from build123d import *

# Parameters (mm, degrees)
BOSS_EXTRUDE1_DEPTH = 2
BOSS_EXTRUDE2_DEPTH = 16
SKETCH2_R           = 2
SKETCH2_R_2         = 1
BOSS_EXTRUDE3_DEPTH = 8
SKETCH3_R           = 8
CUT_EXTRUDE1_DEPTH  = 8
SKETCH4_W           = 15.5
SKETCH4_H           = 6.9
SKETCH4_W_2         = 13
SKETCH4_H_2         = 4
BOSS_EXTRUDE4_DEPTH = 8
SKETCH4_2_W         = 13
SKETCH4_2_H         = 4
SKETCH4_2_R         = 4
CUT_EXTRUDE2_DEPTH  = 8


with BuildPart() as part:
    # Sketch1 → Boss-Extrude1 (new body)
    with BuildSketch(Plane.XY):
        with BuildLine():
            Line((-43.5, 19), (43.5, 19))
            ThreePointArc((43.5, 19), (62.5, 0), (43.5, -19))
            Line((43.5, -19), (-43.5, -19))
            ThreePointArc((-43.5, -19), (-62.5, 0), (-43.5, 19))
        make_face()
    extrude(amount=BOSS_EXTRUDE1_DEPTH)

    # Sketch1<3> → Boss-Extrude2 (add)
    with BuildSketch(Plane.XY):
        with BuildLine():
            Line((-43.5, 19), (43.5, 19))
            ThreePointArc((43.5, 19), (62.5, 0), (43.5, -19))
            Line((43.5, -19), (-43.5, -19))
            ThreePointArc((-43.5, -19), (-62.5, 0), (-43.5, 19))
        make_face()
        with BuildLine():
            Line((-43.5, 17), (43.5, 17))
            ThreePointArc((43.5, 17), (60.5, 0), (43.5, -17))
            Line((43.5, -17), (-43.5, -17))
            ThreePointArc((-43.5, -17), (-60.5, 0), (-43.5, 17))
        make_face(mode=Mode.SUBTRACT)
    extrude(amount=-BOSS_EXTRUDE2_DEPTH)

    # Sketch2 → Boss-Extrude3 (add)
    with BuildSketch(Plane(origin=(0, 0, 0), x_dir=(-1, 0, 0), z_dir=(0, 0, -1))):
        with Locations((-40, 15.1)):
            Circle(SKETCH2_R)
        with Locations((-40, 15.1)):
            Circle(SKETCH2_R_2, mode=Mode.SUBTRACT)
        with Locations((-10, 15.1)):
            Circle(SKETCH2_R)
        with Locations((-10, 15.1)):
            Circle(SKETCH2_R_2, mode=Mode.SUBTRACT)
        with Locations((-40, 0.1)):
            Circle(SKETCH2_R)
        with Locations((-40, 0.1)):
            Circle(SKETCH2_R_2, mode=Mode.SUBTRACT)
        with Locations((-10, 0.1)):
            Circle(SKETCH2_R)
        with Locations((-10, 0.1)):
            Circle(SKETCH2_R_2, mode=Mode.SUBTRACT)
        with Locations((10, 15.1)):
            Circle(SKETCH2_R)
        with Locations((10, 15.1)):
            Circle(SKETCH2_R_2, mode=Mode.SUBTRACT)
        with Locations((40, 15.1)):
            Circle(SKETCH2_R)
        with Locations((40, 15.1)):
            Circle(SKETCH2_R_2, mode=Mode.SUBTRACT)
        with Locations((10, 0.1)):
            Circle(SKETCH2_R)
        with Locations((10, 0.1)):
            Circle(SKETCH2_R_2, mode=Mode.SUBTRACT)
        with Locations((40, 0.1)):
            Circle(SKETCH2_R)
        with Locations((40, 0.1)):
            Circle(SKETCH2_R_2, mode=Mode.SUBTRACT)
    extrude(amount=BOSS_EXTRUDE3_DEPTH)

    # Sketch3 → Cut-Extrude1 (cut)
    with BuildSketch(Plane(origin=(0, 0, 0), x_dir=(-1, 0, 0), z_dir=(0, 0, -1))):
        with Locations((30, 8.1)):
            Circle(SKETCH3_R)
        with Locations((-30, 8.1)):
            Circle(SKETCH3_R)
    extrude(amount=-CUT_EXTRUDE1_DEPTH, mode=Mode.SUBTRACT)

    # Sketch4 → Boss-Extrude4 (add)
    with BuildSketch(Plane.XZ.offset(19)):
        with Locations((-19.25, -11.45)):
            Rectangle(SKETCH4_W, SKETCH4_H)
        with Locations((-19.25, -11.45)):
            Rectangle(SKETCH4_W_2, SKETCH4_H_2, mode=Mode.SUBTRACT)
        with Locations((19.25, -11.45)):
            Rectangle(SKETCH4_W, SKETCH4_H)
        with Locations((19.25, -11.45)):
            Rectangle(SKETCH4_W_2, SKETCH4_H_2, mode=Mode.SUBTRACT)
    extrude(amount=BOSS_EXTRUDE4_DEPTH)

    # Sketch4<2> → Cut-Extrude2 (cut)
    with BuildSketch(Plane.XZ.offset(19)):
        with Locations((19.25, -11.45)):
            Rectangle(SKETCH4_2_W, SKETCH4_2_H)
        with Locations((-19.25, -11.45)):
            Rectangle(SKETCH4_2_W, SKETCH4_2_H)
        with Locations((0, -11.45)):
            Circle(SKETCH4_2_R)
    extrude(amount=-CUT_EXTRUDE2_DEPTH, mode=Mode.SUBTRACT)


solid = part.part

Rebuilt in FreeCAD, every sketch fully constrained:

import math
import FreeCAD as App
import Part
import Sketcher
from FreeCAD import Vector

doc = App.newDocument("Part")
body = doc.addObject("PartDesign::Body", "Body")

sketch1 = body.newObject("Sketcher::SketchObject", "Sketch")
sketch1.AttachmentSupport = (doc.getObject("XY_Plane"), [""])
sketch1.MapMode = "FlatFace"
sketch1.addGeometry(Part.LineSegment(Vector(43.5, 19, 0), Vector(-43.5, 19, 0)), False)
sketch1.addGeometry(Part.ArcOfCircle(Part.Circle(Vector(-43.5, 0, 0), Vector(0, 0, 1), 19), math.radians(90), math.radians(270)), False)
sketch1.addGeometry(Part.LineSegment(Vector(-43.5, -19, 0), Vector(43.5, -19, 0)), False)
sketch1.addGeometry(Part.ArcOfCircle(Part.Circle(Vector(43.5, 0, 0), Vector(0, 0, 1), 19), math.radians(-90), math.radians(90)), False)
sketch1.addConstraint(Sketcher.Constraint("Tangent", 0, 2, 1, 1))
sketch1.addConstraint(Sketcher.Constraint("Tangent", 1, 2, 2, 1))
sketch1.addConstraint(Sketcher.Constraint("Tangent", 2, 2, 3, 1))
sketch1.addConstraint(Sketcher.Constraint("Tangent", 3, 2, 0, 1))
sketch1.addConstraint(Sketcher.Constraint("Horizontal", 0))
sketch1.addConstraint(Sketcher.Constraint("Horizontal", 2))
sketch1.addConstraint(Sketcher.Constraint("Symmetric", 1, 3, 3, 3, -1, 1))
sketch1.addConstraint(Sketcher.Constraint("Radius", 1, 19.0))
sketch1.addConstraint(Sketcher.Constraint("DistanceX", 0, 2, 0, 1, 87.0))
pad1 = body.newObject("PartDesign::Pad", "Pad")
pad1.Profile = sketch1
pad1.Length = 2

sketch2 = body.newObject("Sketcher::SketchObject", "Sketch001")
sketch2.AttachmentSupport = (doc.getObject("XY_Plane"), [""])
sketch2.MapMode = "FlatFace"
sketch2.addGeometry(Part.LineSegment(Vector(43.5, 19, 0), Vector(-43.5, 19, 0)), False)
sketch2.addGeometry(Part.ArcOfCircle(Part.Circle(Vector(-43.5, 0, 0), Vector(0, 0, 1), 19), math.radians(90), math.radians(270)), False)
sketch2.addGeometry(Part.LineSegment(Vector(-43.5, -19, 0), Vector(43.5, -19, 0)), False)
sketch2.addGeometry(Part.ArcOfCircle(Part.Circle(Vector(43.5, 0, 0), Vector(0, 0, 1), 19), math.radians(-90), math.radians(90)), False)
sketch2.addGeometry(Part.LineSegment(Vector(-43.5, 17, 0), Vector(43.5, 17, 0)), False)
sketch2.addGeometry(Part.ArcOfCircle(Part.Circle(Vector(43.5, 0, 0), Vector(0, 0, 1), 17), math.radians(-90), math.radians(90)), False)
sketch2.addGeometry(Part.LineSegment(Vector(43.5, -17, 0), Vector(-43.5, -17, 0)), False)
sketch2.addGeometry(Part.ArcOfCircle(Part.Circle(Vector(-43.5, 0, 0), Vector(0, 0, 1), 17), math.radians(90), math.radians(270)), False)
sketch2.addConstraint(Sketcher.Constraint("Tangent", 0, 2, 1, 1))
sketch2.addConstraint(Sketcher.Constraint("Tangent", 1, 2, 2, 1))
sketch2.addConstraint(Sketcher.Constraint("Tangent", 2, 2, 3, 1))
sketch2.addConstraint(Sketcher.Constraint("Tangent", 3, 2, 0, 1))
sketch2.addConstraint(Sketcher.Constraint("Tangent", 4, 2, 5, 2))
sketch2.addConstraint(Sketcher.Constraint("Tangent", 5, 1, 6, 1))
sketch2.addConstraint(Sketcher.Constraint("Tangent", 6, 2, 7, 2))
sketch2.addConstraint(Sketcher.Constraint("Tangent", 7, 1, 4, 1))
sketch2.addConstraint(Sketcher.Constraint("Horizontal", 0))
sketch2.addConstraint(Sketcher.Constraint("Horizontal", 2))
sketch2.addConstraint(Sketcher.Constraint("Horizontal", 4))
sketch2.addConstraint(Sketcher.Constraint("Horizontal", 6))
sketch2.addConstraint(Sketcher.Constraint("Coincident", 5, 3, 3, 3))
sketch2.addConstraint(Sketcher.Constraint("Symmetric", 1, 3, 3, 3, -1, 1))
sketch2.addConstraint(Sketcher.Constraint("Vertical", 7, 3, 0, 2))
sketch2.addConstraint(Sketcher.Constraint("Radius", 1, 19.0))
sketch2.addConstraint(Sketcher.Constraint("Radius", 5, 17.0))
sketch2.addConstraint(Sketcher.Constraint("DistanceX", 0, 2, 0, 1, 87.0))
pad2 = body.newObject("PartDesign::Pad", "Pad001")
pad2.Profile = sketch2
pad2.Length = 16
pad2.Reversed = True

sketch3 = body.newObject("Sketcher::SketchObject", "Sketch002")
sketch3.AttachmentSupport = (doc.getObject("XY_Plane"), [""])
sketch3.MapMode = "FlatFace"
sketch3.addGeometry(Part.Circle(Vector(40, 15.1, 0), Vector(0, 0, 1), 2), False)
sketch3.addGeometry(Part.Circle(Vector(40, 15.1, 0), Vector(0, 0, 1), 1), False)
sketch3.addGeometry(Part.Circle(Vector(10, 15.1, 0), Vector(0, 0, 1), 2), False)
sketch3.addGeometry(Part.Circle(Vector(10, 15.1, 0), Vector(0, 0, 1), 1), False)
sketch3.addGeometry(Part.Circle(Vector(40, 0.1, 0), Vector(0, 0, 1), 2), False)
sketch3.addGeometry(Part.Circle(Vector(40, 0.1, 0), Vector(0, 0, 1), 1), False)
sketch3.addGeometry(Part.Circle(Vector(10, 0.1, 0), Vector(0, 0, 1), 2), False)
sketch3.addGeometry(Part.Circle(Vector(10, 0.1, 0), Vector(0, 0, 1), 1), False)
sketch3.addGeometry(Part.Circle(Vector(-10, 15.1, 0), Vector(0, 0, 1), 2), False)
sketch3.addGeometry(Part.Circle(Vector(-10, 15.1, 0), Vector(0, 0, 1), 1), False)
sketch3.addGeometry(Part.Circle(Vector(-40, 15.1, 0), Vector(0, 0, 1), 2), False)
sketch3.addGeometry(Part.Circle(Vector(-40, 15.1, 0), Vector(0, 0, 1), 1), False)
sketch3.addGeometry(Part.Circle(Vector(-10, 0.1, 0), Vector(0, 0, 1), 2), False)
sketch3.addGeometry(Part.Circle(Vector(-10, 0.1, 0), Vector(0, 0, 1), 1), False)
sketch3.addGeometry(Part.Circle(Vector(-40, 0.1, 0), Vector(0, 0, 1), 2), False)
sketch3.addGeometry(Part.Circle(Vector(-40, 0.1, 0), Vector(0, 0, 1), 1), False)
sketch3.addConstraint(Sketcher.Constraint("Coincident", 1, 3, 0, 3))
sketch3.addConstraint(Sketcher.Constraint("Coincident", 3, 3, 2, 3))
sketch3.addConstraint(Sketcher.Constraint("Coincident", 5, 3, 4, 3))
sketch3.addConstraint(Sketcher.Constraint("Coincident", 7, 3, 6, 3))
sketch3.addConstraint(Sketcher.Constraint("Coincident", 9, 3, 8, 3))
sketch3.addConstraint(Sketcher.Constraint("Coincident", 11, 3, 10, 3))
sketch3.addConstraint(Sketcher.Constraint("Coincident", 13, 3, 12, 3))
sketch3.addConstraint(Sketcher.Constraint("Coincident", 15, 3, 14, 3))
sketch3.addConstraint(Sketcher.Constraint("Equal", 0, 2))
sketch3.addConstraint(Sketcher.Constraint("Equal", 1, 3))
sketch3.addConstraint(Sketcher.Constraint("Equal", 2, 4))
sketch3.addConstraint(Sketcher.Constraint("Equal", 3, 5))
sketch3.addConstraint(Sketcher.Constraint("Equal", 4, 6))
sketch3.addConstraint(Sketcher.Constraint("Equal", 5, 7))
sketch3.addConstraint(Sketcher.Constraint("Equal", 6, 8))
sketch3.addConstraint(Sketcher.Constraint("Equal", 7, 9))
sketch3.addConstraint(Sketcher.Constraint("Equal", 8, 10))
sketch3.addConstraint(Sketcher.Constraint("Equal", 9, 11))
sketch3.addConstraint(Sketcher.Constraint("Equal", 10, 12))
sketch3.addConstraint(Sketcher.Constraint("Equal", 11, 13))
sketch3.addConstraint(Sketcher.Constraint("Equal", 12, 14))
sketch3.addConstraint(Sketcher.Constraint("Equal", 13, 15))
sketch3.addConstraint(Sketcher.Constraint("Symmetric", 2, 3, 8, 3, -2))
sketch3.addConstraint(Sketcher.Constraint("Symmetric", 0, 3, 10, 3, -2))
sketch3.addConstraint(Sketcher.Constraint("Symmetric", 6, 3, 12, 3, -2))
sketch3.addConstraint(Sketcher.Constraint("Symmetric", 4, 3, 14, 3, -2))
sketch3.addConstraint(Sketcher.Constraint("Horizontal", 1, 3, 2, 3))
sketch3.addConstraint(Sketcher.Constraint("Horizontal", 5, 3, 6, 3))
sketch3.addConstraint(Sketcher.Constraint("Vertical", 1, 3, 4, 3))
sketch3.addConstraint(Sketcher.Constraint("Vertical", 3, 3, 6, 3))
sketch3.addConstraint(Sketcher.Constraint("Diameter", 0, 4.0))
sketch3.addConstraint(Sketcher.Constraint("Diameter", 1, 2.0))
sketch3.addConstraint(Sketcher.Constraint("DistanceX", -1, 1, 0, 3, 40.0))
sketch3.addConstraint(Sketcher.Constraint("DistanceX", -1, 1, 2, 3, 10.0))
sketch3.addConstraint(Sketcher.Constraint("DistanceY", 4, 3, 0, 3, 15.0))
sketch3.addConstraint(Sketcher.Constraint("DistanceY", -1, 1, 0, 3, 15.1))
pad3 = body.newObject("PartDesign::Pad", "Pad002")
pad3.Profile = sketch3
pad3.Length = 8
pad3.Reversed = True

sketch4 = body.newObject("Sketcher::SketchObject", "Sketch003")
sketch4.AttachmentSupport = (doc.getObject("XY_Plane"), [""])
sketch4.MapMode = "FlatFace"
sketch4.addGeometry(Part.Circle(Vector(-30, 8.1, 0), Vector(0, 0, 1), 8), False)
sketch4.addGeometry(Part.Circle(Vector(30, 8.1, 0), Vector(0, 0, 1), 8), False)
sketch4.addConstraint(Sketcher.Constraint("Equal", 0, 1))
sketch4.addConstraint(Sketcher.Constraint("Symmetric", 0, 3, 1, 3, -2))
sketch4.addConstraint(Sketcher.Constraint("Diameter", 0, 16.0))
sketch4.addConstraint(Sketcher.Constraint("DistanceX", 0, 3, -1, 1, 30.0))
sketch4.addConstraint(Sketcher.Constraint("DistanceY", -1, 1, 0, 3, 8.1))
pocket1 = body.newObject("PartDesign::Pocket", "Pocket")
pocket1.Profile = sketch4
pocket1.Length = 8
pocket1.Reversed = True

sketch5 = body.newObject("Sketcher::SketchObject", "Sketch004")
sketch5.AttachmentSupport = (doc.getObject("XZ_Plane"), [""])
sketch5.MapMode = "FlatFace"
sketch5.AttachmentOffset = App.Placement(Vector(0, 0, 19), App.Rotation())
sketch5.addGeometry(Part.LineSegment(Vector(-27, -8, 0), Vector(-27, -14.9, 0)), False)
sketch5.addGeometry(Part.LineSegment(Vector(-27, -14.9, 0), Vector(-11.5, -14.9, 0)), False)
sketch5.addGeometry(Part.LineSegment(Vector(-11.5, -14.9, 0), Vector(-11.5, -8, 0)), False)
sketch5.addGeometry(Part.LineSegment(Vector(-11.5, -8, 0), Vector(-27, -8, 0)), False)
sketch5.addGeometry(Part.LineSegment(Vector(-12.75, -13.45, 0), Vector(-25.75, -13.45, 0)), False)
sketch5.addGeometry(Part.LineSegment(Vector(-25.75, -13.45, 0), Vector(-25.75, -9.45, 0)), False)
sketch5.addGeometry(Part.LineSegment(Vector(-25.75, -9.45, 0), Vector(-12.75, -9.45, 0)), False)
sketch5.addGeometry(Part.LineSegment(Vector(-12.75, -9.45, 0), Vector(-12.75, -13.45, 0)), False)
sketch5.addGeometry(Part.LineSegment(Vector(11.5, -8, 0), Vector(11.5, -14.9, 0)), False)
sketch5.addGeometry(Part.LineSegment(Vector(11.5, -14.9, 0), Vector(27, -14.9, 0)), False)
sketch5.addGeometry(Part.LineSegment(Vector(27, -14.9, 0), Vector(27, -8, 0)), False)
sketch5.addGeometry(Part.LineSegment(Vector(27, -8, 0), Vector(11.5, -8, 0)), False)
sketch5.addGeometry(Part.LineSegment(Vector(25.75, -13.45, 0), Vector(12.75, -13.45, 0)), False)
sketch5.addGeometry(Part.LineSegment(Vector(12.75, -13.45, 0), Vector(12.75, -9.45, 0)), False)
sketch5.addGeometry(Part.LineSegment(Vector(12.75, -9.45, 0), Vector(25.75, -9.45, 0)), False)
sketch5.addGeometry(Part.LineSegment(Vector(25.75, -9.45, 0), Vector(25.75, -13.45, 0)), False)
sketch5.addConstraint(Sketcher.Constraint("Coincident", 0, 2, 1, 1))
sketch5.addConstraint(Sketcher.Constraint("Coincident", 1, 2, 2, 1))
sketch5.addConstraint(Sketcher.Constraint("Coincident", 2, 2, 3, 1))
sketch5.addConstraint(Sketcher.Constraint("Coincident", 3, 2, 0, 1))
sketch5.addConstraint(Sketcher.Constraint("Coincident", 4, 2, 5, 1))
sketch5.addConstraint(Sketcher.Constraint("Coincident", 5, 2, 6, 1))
sketch5.addConstraint(Sketcher.Constraint("Coincident", 6, 2, 7, 1))
sketch5.addConstraint(Sketcher.Constraint("Coincident", 7, 2, 4, 1))
sketch5.addConstraint(Sketcher.Constraint("Coincident", 8, 2, 9, 1))
sketch5.addConstraint(Sketcher.Constraint("Coincident", 9, 2, 10, 1))
sketch5.addConstraint(Sketcher.Constraint("Coincident", 10, 2, 11, 1))
sketch5.addConstraint(Sketcher.Constraint("Coincident", 11, 2, 8, 1))
sketch5.addConstraint(Sketcher.Constraint("Coincident", 12, 2, 13, 1))
sketch5.addConstraint(Sketcher.Constraint("Coincident", 13, 2, 14, 1))
sketch5.addConstraint(Sketcher.Constraint("Coincident", 14, 2, 15, 1))
sketch5.addConstraint(Sketcher.Constraint("Coincident", 15, 2, 12, 1))
sketch5.addConstraint(Sketcher.Constraint("Vertical", 0))
sketch5.addConstraint(Sketcher.Constraint("Horizontal", 1))
sketch5.addConstraint(Sketcher.Constraint("Vertical", 2))
sketch5.addConstraint(Sketcher.Constraint("Horizontal", 3))
sketch5.addConstraint(Sketcher.Constraint("Horizontal", 4))
sketch5.addConstraint(Sketcher.Constraint("Vertical", 5))
sketch5.addConstraint(Sketcher.Constraint("Horizontal", 6))
sketch5.addConstraint(Sketcher.Constraint("Vertical", 7))
sketch5.addConstraint(Sketcher.Constraint("Vertical", 8))
sketch5.addConstraint(Sketcher.Constraint("Horizontal", 9))
sketch5.addConstraint(Sketcher.Constraint("Vertical", 10))
sketch5.addConstraint(Sketcher.Constraint("Horizontal", 11))
sketch5.addConstraint(Sketcher.Constraint("Horizontal", 12))
sketch5.addConstraint(Sketcher.Constraint("Vertical", 13))
sketch5.addConstraint(Sketcher.Constraint("Horizontal", 14))
sketch5.addConstraint(Sketcher.Constraint("Vertical", 15))
sketch5.addConstraint(Sketcher.Constraint("Symmetric", 1, 2, 8, 2, -2))
sketch5.addConstraint(Sketcher.Constraint("Symmetric", 3, 2, 10, 2, -2))
sketch5.addConstraint(Sketcher.Constraint("Symmetric", 7, 2, 12, 2, -2))
sketch5.addConstraint(Sketcher.Constraint("Symmetric", 5, 2, 14, 2, -2))
sketch5.addConstraint(Sketcher.Constraint("DistanceX", 4, 2, 4, 1, 13.0))
sketch5.addConstraint(Sketcher.Constraint("DistanceY", 5, 1, 5, 2, 4.0))
sketch5.addConstraint(Sketcher.Constraint("DistanceX", 1, 1, 1, 2, 15.5))
sketch5.addConstraint(Sketcher.Constraint("DistanceY", 0, 2, 0, 1, 6.9))
sketch5.addConstraint(Sketcher.Constraint("DistanceX", 0, 2, -1, 1, 27.0))
sketch5.addConstraint(Sketcher.Constraint("DistanceY", 2, 2, -1, 1, 8.0))
sketch5.addConstraint(Sketcher.Constraint("DistanceX", 4, 2, -1, 1, 25.75))
sketch5.addConstraint(Sketcher.Constraint("DistanceY", 4, 2, -1, 1, 13.45))
pad4 = body.newObject("PartDesign::Pad", "Pad003")
pad4.Profile = sketch5
pad4.Length = 8

sketch6 = body.newObject("Sketcher::SketchObject", "Sketch005")
sketch6.AttachmentSupport = (doc.getObject("XZ_Plane"), [""])
sketch6.MapMode = "FlatFace"
sketch6.AttachmentOffset = App.Placement(Vector(0, 0, 19), App.Rotation())
sketch6.addGeometry(Part.LineSegment(Vector(12.75, -9.45, 0), Vector(12.75, -13.45, 0)), False)
sketch6.addGeometry(Part.LineSegment(Vector(12.75, -13.45, 0), Vector(25.75, -13.45, 0)), False)
sketch6.addGeometry(Part.LineSegment(Vector(25.75, -13.45, 0), Vector(25.75, -9.45, 0)), False)
sketch6.addGeometry(Part.LineSegment(Vector(25.75, -9.45, 0), Vector(12.75, -9.45, 0)), False)
sketch6.addGeometry(Part.LineSegment(Vector(-25.75, -9.45, 0), Vector(-25.75, -13.45, 0)), False)
sketch6.addGeometry(Part.LineSegment(Vector(-25.75, -13.45, 0), Vector(-12.75, -13.45, 0)), False)
sketch6.addGeometry(Part.LineSegment(Vector(-12.75, -13.45, 0), Vector(-12.75, -9.45, 0)), False)
sketch6.addGeometry(Part.LineSegment(Vector(-12.75, -9.45, 0), Vector(-25.75, -9.45, 0)), False)
sketch6.addGeometry(Part.Circle(Vector(0, -11.45, 0), Vector(0, 0, 1), 4), False)
sketch6.addConstraint(Sketcher.Constraint("Coincident", 0, 2, 1, 1))
sketch6.addConstraint(Sketcher.Constraint("Coincident", 1, 2, 2, 1))
sketch6.addConstraint(Sketcher.Constraint("Coincident", 2, 2, 3, 1))
sketch6.addConstraint(Sketcher.Constraint("Coincident", 3, 2, 0, 1))
sketch6.addConstraint(Sketcher.Constraint("Coincident", 4, 2, 5, 1))
sketch6.addConstraint(Sketcher.Constraint("Coincident", 5, 2, 6, 1))
sketch6.addConstraint(Sketcher.Constraint("Coincident", 6, 2, 7, 1))
sketch6.addConstraint(Sketcher.Constraint("Coincident", 7, 2, 4, 1))
sketch6.addConstraint(Sketcher.Constraint("Vertical", 0))
sketch6.addConstraint(Sketcher.Constraint("Horizontal", 1))
sketch6.addConstraint(Sketcher.Constraint("Vertical", 2))
sketch6.addConstraint(Sketcher.Constraint("Horizontal", 3))
sketch6.addConstraint(Sketcher.Constraint("Vertical", 4))
sketch6.addConstraint(Sketcher.Constraint("Horizontal", 5))
sketch6.addConstraint(Sketcher.Constraint("Vertical", 6))
sketch6.addConstraint(Sketcher.Constraint("Horizontal", 7))
sketch6.addConstraint(Sketcher.Constraint("Symmetric", 1, 2, 4, 2, -2))
sketch6.addConstraint(Sketcher.Constraint("Symmetric", 3, 2, 6, 2, -2))
sketch6.addConstraint(Sketcher.Constraint("PointOnObject", 8, 3, -2))
sketch6.addConstraint(Sketcher.Constraint("Diameter", 8, 8.0))
sketch6.addConstraint(Sketcher.Constraint("DistanceX", 1, 1, 1, 2, 13.0))
sketch6.addConstraint(Sketcher.Constraint("DistanceY", 0, 2, 0, 1, 4.0))
sketch6.addConstraint(Sketcher.Constraint("DistanceY", 0, 2, 8, 3, 2.0))
sketch6.addConstraint(Sketcher.Constraint("DistanceX", 4, 2, 0, 2, 38.5))
sketch6.addConstraint(Sketcher.Constraint("DistanceY", 8, 3, -1, 1, 11.45))
pocket2 = body.newObject("PartDesign::Pocket", "Pocket001")
pocket2.Profile = sketch6
pocket2.Length = 8

doc.recompute()
